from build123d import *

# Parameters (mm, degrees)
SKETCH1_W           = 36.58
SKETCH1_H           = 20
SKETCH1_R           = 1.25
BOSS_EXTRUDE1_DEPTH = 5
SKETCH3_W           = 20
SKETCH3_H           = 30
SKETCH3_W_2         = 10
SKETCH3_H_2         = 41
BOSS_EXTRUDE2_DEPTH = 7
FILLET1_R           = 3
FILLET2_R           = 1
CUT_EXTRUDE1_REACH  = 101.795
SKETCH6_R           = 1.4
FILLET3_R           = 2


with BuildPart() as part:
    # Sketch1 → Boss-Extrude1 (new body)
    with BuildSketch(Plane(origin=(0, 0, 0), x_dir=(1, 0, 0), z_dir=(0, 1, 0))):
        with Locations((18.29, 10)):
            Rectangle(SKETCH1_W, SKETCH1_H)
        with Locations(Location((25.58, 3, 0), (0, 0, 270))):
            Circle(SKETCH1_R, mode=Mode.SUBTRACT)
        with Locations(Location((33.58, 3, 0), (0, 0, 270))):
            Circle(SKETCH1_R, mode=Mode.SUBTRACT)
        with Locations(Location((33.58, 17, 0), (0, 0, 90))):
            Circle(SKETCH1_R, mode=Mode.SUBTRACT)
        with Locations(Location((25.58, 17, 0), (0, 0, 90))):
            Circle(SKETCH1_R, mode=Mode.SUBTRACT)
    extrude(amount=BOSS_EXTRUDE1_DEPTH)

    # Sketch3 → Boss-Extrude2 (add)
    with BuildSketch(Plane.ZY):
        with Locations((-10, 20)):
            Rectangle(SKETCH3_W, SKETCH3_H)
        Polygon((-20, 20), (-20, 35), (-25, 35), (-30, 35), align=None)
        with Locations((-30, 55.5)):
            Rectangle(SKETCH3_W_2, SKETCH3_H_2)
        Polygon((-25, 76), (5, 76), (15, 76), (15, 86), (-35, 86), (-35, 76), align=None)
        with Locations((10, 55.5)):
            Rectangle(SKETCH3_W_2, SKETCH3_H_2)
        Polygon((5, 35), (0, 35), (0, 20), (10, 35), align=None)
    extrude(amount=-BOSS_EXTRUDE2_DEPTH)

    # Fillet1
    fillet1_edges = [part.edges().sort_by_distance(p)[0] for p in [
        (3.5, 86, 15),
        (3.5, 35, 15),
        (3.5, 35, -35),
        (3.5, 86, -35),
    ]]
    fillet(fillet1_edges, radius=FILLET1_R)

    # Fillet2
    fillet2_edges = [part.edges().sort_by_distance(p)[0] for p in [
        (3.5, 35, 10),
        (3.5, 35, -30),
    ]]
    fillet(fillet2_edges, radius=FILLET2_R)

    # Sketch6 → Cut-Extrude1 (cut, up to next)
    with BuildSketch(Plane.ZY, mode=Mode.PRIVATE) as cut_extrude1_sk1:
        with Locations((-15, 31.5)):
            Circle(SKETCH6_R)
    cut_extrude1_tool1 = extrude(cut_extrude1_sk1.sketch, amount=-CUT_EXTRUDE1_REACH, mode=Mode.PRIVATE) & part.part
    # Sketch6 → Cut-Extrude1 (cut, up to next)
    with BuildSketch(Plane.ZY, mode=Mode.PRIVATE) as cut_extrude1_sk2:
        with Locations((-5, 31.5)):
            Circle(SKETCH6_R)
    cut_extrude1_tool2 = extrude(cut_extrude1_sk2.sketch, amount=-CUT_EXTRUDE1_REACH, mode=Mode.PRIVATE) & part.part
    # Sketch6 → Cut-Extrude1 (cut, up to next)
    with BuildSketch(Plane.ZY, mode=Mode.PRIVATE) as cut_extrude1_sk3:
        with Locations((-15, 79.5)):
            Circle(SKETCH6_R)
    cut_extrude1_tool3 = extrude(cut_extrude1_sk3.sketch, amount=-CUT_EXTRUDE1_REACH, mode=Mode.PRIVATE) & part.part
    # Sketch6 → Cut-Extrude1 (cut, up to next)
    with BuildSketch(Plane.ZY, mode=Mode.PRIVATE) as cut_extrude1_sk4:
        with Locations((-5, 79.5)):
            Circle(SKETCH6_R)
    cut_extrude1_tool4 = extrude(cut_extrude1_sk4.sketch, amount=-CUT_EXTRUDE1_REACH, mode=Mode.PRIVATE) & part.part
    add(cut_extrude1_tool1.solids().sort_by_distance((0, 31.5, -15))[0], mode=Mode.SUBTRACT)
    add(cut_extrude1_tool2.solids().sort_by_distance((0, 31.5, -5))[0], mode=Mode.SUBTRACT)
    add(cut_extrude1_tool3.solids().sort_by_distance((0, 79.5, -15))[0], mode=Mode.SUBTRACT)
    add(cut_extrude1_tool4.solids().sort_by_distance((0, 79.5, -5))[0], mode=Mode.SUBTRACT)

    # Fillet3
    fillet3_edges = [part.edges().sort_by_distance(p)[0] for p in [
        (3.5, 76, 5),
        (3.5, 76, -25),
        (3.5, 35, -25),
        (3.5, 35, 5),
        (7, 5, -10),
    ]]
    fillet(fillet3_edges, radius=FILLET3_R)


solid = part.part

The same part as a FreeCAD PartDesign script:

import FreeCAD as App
import Part
import Sketcher
from FreeCAD import Vector


def edges_at(feature, points):
    """Names of the edges that pass closest to the given points."""
    edges = feature.Shape.Edges
    near = lambda p: min(range(len(edges)), key=lambda i: edges[i].distToShape(Part.Vertex(*p))[0])
    return sorted({f"Edge{near(p) + 1}" for p in points})


def add_polygon(sketch, points):
    """Adds a closed chain of lines whose ends are joined by coincident constraints."""
    first, n = sketch.GeometryCount, len(points)
    for a, b in zip(points, points[1:] + points[:1]):
        sketch.addGeometry(Part.LineSegment(App.Vector(*a, 0), App.Vector(*b, 0)), False)
    for i in range(n):
        sketch.addConstraint(Sketcher.Constraint("Coincident", first + i, 2, first + (i + 1) % n, 1))

doc = App.newDocument("Part")
body = doc.addObject("PartDesign::Body", "Body")

# Sketch on XZ plane
sketch1 = body.newObject("Sketcher::SketchObject", "Sketch")
sketch1.AttachmentSupport = (doc.getObject("XZ_Plane"), [""])
sketch1.MapMode = "FlatFace"
add_polygon(sketch1, [(0, -20), (0, 0), (36.6, 0), (36.6, -20)])  # lines 0-3
sketch1.addGeometry(Part.Circle(Vector(25.6, -3, 0), Vector(0, 0, 1), 1.2), False)  # 4
sketch1.addGeometry(Part.Circle(Vector(33.6, -3, 0), Vector(0, 0, 1), 1.2), False)  # 5
sketch1.addGeometry(Part.Circle(Vector(25.6, -17, 0), Vector(0, 0, 1), 1.2), False)  # 6
sketch1.addGeometry(Part.Circle(Vector(33.6, -17, 0), Vector(0, 0, 1), 1.2), False)  # 7
sketch1.addConstraint([
    Sketcher.Constraint("Vertical", 0),
    Sketcher.Constraint("Horizontal", 1),
    Sketcher.Constraint("Vertical", 2),
    Sketcher.Constraint("Horizontal", 3),
    Sketcher.Constraint("Coincident", 0, 2, -1, 1),
    Sketcher.Constraint("Equal", 4, 5),
    Sketcher.Constraint("Equal", 5, 6),
    Sketcher.Constraint("Equal", 6, 7),
    Sketcher.Constraint("Horizontal", 4, 3, 5, 3),
    Sketcher.Constraint("Horizontal", 6, 3, 7, 3),
    Sketcher.Constraint("Vertical", 4, 3, 6, 3),
    Sketcher.Constraint("Vertical", 5, 3, 7, 3),
    Sketcher.Constraint("Diameter", 4, 2.5),
    Sketcher.Constraint("DistanceY", 0, 1, 0, 2, 20.0),
    Sketcher.Constraint("DistanceY", 4, 3, -1, 1, 3.0),
    Sketcher.Constraint("DistanceY", 6, 3, -1, 1, 17.0),
    Sketcher.Constraint("DistanceX", 4, 3, 5, 3, 8.0),
    Sketcher.Constraint("DistanceX", 5, 3, 1, 2, 3.0),
    Sketcher.Constraint("DistanceX", 1, 1, 1, 2, 36.58),
])
pad1 = body.newObject("PartDesign::Pad", "Pad")
pad1.Profile = sketch1
pad1.Length = 5
pad1.Reversed = True

# Sketch on YZ plane
sketch2 = body.newObject("Sketcher::SketchObject", "Sketch001")
sketch2.AttachmentSupport = (doc.getObject("YZ_Plane"), [""])
sketch2.MapMode = "FlatFace"
add_polygon(sketch2, [(20, -20), (5, -20), (5, 0), (20, 0), (35, 10), (35, 15), (86, 15), (86, -35), (35, -35), (35, -30)])  # lines 0-9
add_polygon(sketch2, [(35, -25), (76, -25), (76, 5), (35, 5)])  # lines 10-13
sketch2.addConstraint([
    Sketcher.Constraint("Horizontal", 0),
    Sketcher.Constraint("Vertical", 1),
    Sketcher.Constraint("Horizontal", 2),
    Sketcher.Constraint("Vertical", 4),
    Sketcher.Constraint("Horizontal", 5),
    Sketcher.Constraint("Vertical", 6),
    Sketcher.Constraint("Horizontal", 7),
    Sketcher.Constraint("Vertical", 8),
    Sketcher.Constraint("Horizontal", 10),
    Sketcher.Constraint("Vertical", 11),
    Sketcher.Constraint("Horizontal", 12),
    Sketcher.Constraint("Vertical", 13),
    Sketcher.Constraint("PointOnObject", 1, 2, -1),
    Sketcher.Constraint("Vertical", 4, 2, 7, 2),
    Sketcher.Constraint("Vertical", 2, 2, 9, 2),
    Sketcher.Constraint("Vertical", 8, 2, 12, 2),
    Sketcher.Constraint("Equal", 4, 8),
    Sketcher.Constraint("Equal", 3, 9),
    Sketcher.Constraint("DistanceX", 0, 2, 0, 1, 15.0),
    Sketcher.Constraint("DistanceX", 5, 1, 5, 2, 51.0),
    Sketcher.Constraint("DistanceX", 10, 1, 10, 2, 41.0),
    Sketcher.Constraint("DistanceY", 1, 1, 1, 2, 20.0),
    Sketcher.Constraint("DistanceY", 4, 1, 4, 2, 5.0),
    Sketcher.Constraint("DistanceY", 6, 2, 6, 1, 50.0),
    Sketcher.Constraint("DistanceY", 11, 1, 11, 2, 30.0),
    Sketcher.Constraint("DistanceX", -1, 1, 0, 2, 5.0),
    Sketcher.Constraint("DistanceX", -1, 1, 3, 2, 35.0),
    Sketcher.Constraint("DistanceY", 10, 2, -1, 1, 25.0),
])
pad2 = body.newObject("PartDesign::Pad", "Pad001")
pad2.Profile = sketch2
pad2.Length = 7
doc.recompute()

fillet = body.newObject("PartDesign::Fillet", "Fillet")
fillet.Base = (pad2, edges_at(pad2, [
    (3.5, 86, 15),
    (3.5, 35, 15),
    (3.5, 35, -35),
    (3.5, 86, -35),
]))
fillet.Radius = 3
doc.recompute()

fillet2 = body.newObject("PartDesign::Fillet", "Fillet001")
fillet2.Base = (fillet, edges_at(fillet, [(3.5, 35, 10), (3.5, 35, -30)]))
fillet2.Radius = 1

# Sketch on YZ plane
sketch3 = body.newObject("Sketcher::SketchObject", "Sketch002")
sketch3.AttachmentSupport = (doc.getObject("YZ_Plane"), [""])
sketch3.MapMode = "FlatFace"
sketch3.addGeometry(Part.Circle(Vector(31.5, -15, 0), Vector(0, 0, 1), 1.4), False)
sketch3.addConstraint([
    Sketcher.Constraint("Diameter", 0, 2.8),
    Sketcher.Constraint("DistanceY", 0, 3, -1, 1, 15.0),
    Sketcher.Constraint("DistanceX", -1, 1, 0, 3, 31.5),
])
pocket1 = body.newObject("PartDesign::Pocket", "Pocket")
pocket1.Profile = sketch3
pocket1.Type = "UpToFirst"
pocket1.Reversed = True

# Sketch on YZ plane
sketch4 = body.newObject("Sketcher::SketchObject", "Sketch003")
sketch4.AttachmentSupport = (doc.getObject("YZ_Plane"), [""])
sketch4.MapMode = "FlatFace"
sketch4.addGeometry(Part.Circle(Vector(31.5, -5, 0), Vector(0, 0, 1), 1.4), False)
sketch4.addConstraint([
    Sketcher.Constraint("Diameter", 0, 2.8),
    Sketcher.Constraint("DistanceY", 0, 3, -1, 1, 5.0),
    Sketcher.Constraint("DistanceX", -1, 1, 0, 3, 31.5),
])
pocket2 = body.newObject("PartDesign::Pocket", "Pocket001")
pocket2.Profile = sketch4
pocket2.Type = "UpToFirst"
pocket2.Reversed = True

# Sketch on YZ plane
sketch5 = body.newObject("Sketcher::SketchObject", "Sketch004")
sketch5.AttachmentSupport = (doc.getObject("YZ_Plane"), [""])
sketch5.MapMode = "FlatFace"
sketch5.addGeometry(Part.Circle(Vector(79.5, -15, 0), Vector(0, 0, 1), 1.4), False)
sketch5.addConstraint([
    Sketcher.Constraint("Diameter", 0, 2.8),
    Sketcher.Constraint("DistanceY", 0, 3, -1, 1, 15.0),
    Sketcher.Constraint("DistanceX", -1, 1, 0, 3, 79.5),
])
pocket3 = body.newObject("PartDesign::Pocket", "Pocket002")
pocket3.Profile = sketch5
pocket3.Type = "UpToFirst"
pocket3.Reversed = True

# Sketch on YZ plane
sketch6 = body.newObject("Sketcher::SketchObject", "Sketch005")
sketch6.AttachmentSupport = (doc.getObject("YZ_Plane"), [""])
sketch6.MapMode = "FlatFace"
sketch6.addGeometry(Part.Circle(Vector(79.5, -5, 0), Vector(0, 0, 1), 1.4), False)
sketch6.addConstraint([
    Sketcher.Constraint("Diameter", 0, 2.8),
    Sketcher.Constraint("DistanceY", 0, 3, -1, 1, 5.0),
    Sketcher.Constraint("DistanceX", -1, 1, 0, 3, 79.5),
])
pocket4 = body.newObject("PartDesign::Pocket", "Pocket003")
pocket4.Profile = sketch6
pocket4.Type = "UpToFirst"
pocket4.Reversed = True
doc.recompute()

fillet3 = body.newObject("PartDesign::Fillet", "Fillet002")
fillet3.Base = (pocket4, edges_at(pocket4, [
    (3.5, 76, 5),
    (3.5, 76, -25),
    (3.5, 35, -25),
    (3.5, 35, 5),
    (7, 5, -10),
]))
fillet3.Radius = 2

doc.recompute()
